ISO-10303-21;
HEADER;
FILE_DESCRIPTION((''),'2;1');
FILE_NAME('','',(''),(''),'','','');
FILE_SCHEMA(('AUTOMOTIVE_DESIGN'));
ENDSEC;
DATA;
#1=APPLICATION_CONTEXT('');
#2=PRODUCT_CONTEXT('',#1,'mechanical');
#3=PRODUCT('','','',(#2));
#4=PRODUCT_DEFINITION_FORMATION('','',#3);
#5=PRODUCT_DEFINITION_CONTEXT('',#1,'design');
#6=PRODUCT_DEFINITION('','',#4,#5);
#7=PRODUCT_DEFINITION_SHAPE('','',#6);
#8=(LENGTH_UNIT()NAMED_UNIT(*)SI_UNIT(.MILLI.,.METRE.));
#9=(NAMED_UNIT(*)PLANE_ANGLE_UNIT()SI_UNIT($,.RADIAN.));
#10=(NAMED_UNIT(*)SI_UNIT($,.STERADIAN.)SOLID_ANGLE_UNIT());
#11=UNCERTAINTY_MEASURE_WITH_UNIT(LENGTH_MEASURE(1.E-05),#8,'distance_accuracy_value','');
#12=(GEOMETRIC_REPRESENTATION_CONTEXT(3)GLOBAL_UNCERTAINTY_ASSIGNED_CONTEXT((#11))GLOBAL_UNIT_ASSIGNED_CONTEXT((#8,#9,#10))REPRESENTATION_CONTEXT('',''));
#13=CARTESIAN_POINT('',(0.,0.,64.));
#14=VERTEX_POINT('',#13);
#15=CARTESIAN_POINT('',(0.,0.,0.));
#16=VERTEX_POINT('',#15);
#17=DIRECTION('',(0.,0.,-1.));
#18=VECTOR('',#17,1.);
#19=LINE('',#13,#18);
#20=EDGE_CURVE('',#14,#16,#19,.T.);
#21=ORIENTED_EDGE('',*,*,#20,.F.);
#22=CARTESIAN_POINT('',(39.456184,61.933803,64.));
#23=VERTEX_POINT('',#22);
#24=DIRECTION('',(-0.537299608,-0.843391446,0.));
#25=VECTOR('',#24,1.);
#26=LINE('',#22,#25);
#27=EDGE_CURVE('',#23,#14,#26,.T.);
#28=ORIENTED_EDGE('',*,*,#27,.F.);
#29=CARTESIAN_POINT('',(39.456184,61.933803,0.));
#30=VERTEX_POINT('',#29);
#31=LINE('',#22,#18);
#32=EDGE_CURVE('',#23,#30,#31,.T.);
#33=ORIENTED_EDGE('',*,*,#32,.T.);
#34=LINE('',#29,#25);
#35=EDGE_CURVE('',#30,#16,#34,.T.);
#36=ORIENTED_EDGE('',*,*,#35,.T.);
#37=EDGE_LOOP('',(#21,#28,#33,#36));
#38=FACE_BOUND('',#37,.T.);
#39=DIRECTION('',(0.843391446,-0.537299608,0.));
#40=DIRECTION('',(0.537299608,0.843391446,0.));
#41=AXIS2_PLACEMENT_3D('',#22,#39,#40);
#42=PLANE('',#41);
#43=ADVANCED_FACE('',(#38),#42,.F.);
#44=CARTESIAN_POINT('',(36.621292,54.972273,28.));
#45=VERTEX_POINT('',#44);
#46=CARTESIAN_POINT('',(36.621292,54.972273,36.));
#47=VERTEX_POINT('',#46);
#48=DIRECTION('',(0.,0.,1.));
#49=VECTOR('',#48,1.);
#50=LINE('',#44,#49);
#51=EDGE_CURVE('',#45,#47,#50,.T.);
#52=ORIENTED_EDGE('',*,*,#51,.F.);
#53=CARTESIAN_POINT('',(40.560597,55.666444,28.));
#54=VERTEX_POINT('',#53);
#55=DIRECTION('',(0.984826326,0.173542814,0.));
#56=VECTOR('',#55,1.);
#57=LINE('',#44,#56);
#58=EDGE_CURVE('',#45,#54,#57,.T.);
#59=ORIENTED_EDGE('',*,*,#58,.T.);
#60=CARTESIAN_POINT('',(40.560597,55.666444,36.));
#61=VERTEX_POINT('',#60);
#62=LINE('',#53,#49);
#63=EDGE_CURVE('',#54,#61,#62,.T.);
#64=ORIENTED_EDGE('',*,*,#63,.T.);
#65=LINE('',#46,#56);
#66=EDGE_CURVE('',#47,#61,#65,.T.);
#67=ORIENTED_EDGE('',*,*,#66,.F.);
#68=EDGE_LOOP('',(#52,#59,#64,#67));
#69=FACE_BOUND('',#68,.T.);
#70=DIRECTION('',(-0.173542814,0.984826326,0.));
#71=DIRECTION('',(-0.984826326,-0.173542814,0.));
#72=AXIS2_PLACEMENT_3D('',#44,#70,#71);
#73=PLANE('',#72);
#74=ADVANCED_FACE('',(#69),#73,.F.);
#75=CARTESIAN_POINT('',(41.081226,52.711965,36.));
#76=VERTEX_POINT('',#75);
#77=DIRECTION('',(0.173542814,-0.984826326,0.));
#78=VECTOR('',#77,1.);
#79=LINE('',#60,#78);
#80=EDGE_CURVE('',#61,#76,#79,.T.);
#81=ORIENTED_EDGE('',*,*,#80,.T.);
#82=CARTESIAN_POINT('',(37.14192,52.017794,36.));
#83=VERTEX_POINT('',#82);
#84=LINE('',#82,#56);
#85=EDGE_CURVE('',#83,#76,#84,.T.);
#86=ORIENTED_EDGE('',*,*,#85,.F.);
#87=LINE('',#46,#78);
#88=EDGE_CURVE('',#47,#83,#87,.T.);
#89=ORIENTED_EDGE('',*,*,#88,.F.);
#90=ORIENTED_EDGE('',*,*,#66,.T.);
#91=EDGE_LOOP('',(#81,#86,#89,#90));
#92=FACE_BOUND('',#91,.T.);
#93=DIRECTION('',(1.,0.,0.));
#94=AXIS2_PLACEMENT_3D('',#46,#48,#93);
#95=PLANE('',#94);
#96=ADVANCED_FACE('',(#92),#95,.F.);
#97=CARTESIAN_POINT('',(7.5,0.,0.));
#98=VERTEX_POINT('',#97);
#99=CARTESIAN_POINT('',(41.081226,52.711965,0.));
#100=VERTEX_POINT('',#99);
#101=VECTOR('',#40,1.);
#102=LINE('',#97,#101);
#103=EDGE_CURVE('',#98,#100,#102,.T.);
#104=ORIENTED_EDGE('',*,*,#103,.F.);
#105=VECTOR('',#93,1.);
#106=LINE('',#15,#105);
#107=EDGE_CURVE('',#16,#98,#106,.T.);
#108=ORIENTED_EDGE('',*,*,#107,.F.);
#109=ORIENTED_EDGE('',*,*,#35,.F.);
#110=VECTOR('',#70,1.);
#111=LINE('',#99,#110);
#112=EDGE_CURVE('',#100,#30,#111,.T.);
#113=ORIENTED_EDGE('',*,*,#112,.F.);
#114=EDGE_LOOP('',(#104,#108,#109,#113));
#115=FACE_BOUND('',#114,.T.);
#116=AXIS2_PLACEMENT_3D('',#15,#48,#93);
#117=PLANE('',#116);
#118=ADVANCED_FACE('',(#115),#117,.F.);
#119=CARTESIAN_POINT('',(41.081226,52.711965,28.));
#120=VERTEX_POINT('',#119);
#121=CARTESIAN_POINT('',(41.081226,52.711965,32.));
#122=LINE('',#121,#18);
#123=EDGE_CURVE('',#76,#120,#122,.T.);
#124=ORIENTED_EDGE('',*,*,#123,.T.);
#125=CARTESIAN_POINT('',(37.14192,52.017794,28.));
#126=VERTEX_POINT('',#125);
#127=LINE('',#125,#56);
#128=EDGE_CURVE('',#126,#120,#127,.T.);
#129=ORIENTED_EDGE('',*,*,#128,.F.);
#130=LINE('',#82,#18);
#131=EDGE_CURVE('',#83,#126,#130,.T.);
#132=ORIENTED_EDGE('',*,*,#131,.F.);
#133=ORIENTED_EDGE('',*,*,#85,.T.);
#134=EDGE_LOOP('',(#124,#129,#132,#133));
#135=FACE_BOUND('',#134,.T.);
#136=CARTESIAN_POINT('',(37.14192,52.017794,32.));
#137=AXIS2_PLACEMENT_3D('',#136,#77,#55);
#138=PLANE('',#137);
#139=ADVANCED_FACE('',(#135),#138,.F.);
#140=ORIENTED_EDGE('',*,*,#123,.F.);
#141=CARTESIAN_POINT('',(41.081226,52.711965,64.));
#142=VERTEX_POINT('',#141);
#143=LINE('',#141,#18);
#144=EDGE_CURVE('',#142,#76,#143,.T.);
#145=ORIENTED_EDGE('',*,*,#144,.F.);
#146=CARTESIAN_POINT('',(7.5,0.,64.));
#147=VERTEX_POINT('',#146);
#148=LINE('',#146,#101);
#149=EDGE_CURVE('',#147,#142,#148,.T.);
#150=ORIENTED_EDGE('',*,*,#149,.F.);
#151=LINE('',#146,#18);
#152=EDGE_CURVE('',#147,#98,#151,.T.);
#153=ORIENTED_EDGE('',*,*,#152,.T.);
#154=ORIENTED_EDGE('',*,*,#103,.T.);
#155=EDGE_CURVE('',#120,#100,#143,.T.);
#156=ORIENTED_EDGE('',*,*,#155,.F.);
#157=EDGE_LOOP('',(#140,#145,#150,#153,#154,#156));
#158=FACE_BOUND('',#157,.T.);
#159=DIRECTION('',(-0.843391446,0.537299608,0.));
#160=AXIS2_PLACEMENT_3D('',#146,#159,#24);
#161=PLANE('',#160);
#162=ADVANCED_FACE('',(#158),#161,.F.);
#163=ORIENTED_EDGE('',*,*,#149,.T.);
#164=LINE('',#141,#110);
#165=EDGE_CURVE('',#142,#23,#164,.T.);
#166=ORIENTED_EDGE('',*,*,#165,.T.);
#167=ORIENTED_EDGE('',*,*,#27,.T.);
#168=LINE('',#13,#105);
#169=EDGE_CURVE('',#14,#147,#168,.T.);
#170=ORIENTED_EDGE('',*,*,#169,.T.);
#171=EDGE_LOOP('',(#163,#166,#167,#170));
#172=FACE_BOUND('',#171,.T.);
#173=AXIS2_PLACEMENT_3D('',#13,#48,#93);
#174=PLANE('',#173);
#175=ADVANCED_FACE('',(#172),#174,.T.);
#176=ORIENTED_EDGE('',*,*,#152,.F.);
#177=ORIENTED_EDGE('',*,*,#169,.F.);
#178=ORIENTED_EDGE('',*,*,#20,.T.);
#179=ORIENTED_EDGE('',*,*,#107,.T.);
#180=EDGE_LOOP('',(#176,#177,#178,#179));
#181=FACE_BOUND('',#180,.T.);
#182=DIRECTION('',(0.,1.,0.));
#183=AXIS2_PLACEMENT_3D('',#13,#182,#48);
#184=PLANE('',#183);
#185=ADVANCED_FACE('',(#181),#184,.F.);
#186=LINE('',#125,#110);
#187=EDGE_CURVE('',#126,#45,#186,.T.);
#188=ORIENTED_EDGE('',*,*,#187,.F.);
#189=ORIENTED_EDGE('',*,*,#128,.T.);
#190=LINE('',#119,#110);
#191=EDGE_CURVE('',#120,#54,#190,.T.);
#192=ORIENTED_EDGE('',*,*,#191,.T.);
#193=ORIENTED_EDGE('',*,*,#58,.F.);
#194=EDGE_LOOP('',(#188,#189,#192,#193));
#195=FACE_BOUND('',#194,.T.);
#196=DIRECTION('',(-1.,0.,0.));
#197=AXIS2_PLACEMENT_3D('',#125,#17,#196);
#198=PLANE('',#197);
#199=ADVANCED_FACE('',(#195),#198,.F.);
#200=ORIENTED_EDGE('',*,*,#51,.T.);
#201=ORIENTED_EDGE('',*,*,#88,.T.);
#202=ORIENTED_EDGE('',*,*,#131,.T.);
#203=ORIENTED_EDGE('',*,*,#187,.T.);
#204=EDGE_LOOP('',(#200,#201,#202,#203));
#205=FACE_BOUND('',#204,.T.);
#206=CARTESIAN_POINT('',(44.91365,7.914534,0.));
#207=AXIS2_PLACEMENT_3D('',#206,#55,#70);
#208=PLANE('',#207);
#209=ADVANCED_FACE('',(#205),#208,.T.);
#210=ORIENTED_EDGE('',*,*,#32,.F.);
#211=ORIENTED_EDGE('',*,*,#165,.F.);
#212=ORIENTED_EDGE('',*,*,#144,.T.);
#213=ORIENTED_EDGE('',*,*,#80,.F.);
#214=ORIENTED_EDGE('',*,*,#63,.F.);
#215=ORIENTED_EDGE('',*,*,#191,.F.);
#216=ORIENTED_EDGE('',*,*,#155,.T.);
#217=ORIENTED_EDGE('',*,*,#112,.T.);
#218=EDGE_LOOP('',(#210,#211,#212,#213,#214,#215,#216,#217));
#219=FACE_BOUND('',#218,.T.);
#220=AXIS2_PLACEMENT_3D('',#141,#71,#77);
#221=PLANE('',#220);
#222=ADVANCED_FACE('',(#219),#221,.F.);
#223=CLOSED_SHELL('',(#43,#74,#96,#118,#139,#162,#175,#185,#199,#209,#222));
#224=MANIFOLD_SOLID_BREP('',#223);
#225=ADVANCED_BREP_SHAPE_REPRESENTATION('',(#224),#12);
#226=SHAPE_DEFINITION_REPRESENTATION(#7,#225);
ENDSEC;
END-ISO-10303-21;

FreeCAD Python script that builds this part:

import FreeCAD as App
import Part
import Sketcher
from FreeCAD import Vector
Q = App.Units.Quantity

doc = App.newDocument("Part")
params = doc.addObject("Spreadsheet::Sheet", "Params")
for row, (alias, value) in enumerate([
    ("sketch1_width", "7.5 mm"),
    ("sketch1_length", "62.5 mm"),
    ("pad1_length", "64 mm"),
    ("sketch2_width", "8 mm"),
    ("sketch2_height", "3 mm"),
    ("pocket1_length", "4 mm"),
], start=1):
    params.set(f"A{row}", alias)
    params.set(f"B{row}", "=" + value)
    params.setAlias(f"B{row}", alias)

body = doc.addObject("PartDesign::Body", "Body")

# Sketch on XY plane
sketch1 = doc.addObject("Sketcher::SketchObject", "Sketch")
body.addObject(sketch1)
sketch1.AttachmentSupport = (doc.XY_Plane, [""])
sketch1.MapMode = "FlatFace"
sketch1.addGeometry([
    Part.LineSegment(Vector(0, 0, 0), Vector(8, 0, 0)),
    Part.LineSegment(Vector(8, 0, 0), Vector(41, 53, 0)),
    Part.LineSegment(Vector(41, 53, 0), Vector(39, 62, 0)),
    Part.LineSegment(Vector(39, 62, 0), Vector(0, 0, 0)),
], False)
sketch1.addConstraint([
    Sketcher.Constraint("Coincident", 0, 2, 1, 1),
    Sketcher.Constraint("Coincident", 1, 2, 2, 1),
    Sketcher.Constraint("Coincident", 2, 2, 3, 1),
    Sketcher.Constraint("Coincident", 3, 2, 0, 1),
    Sketcher.Constraint("Horizontal", 0),
    Sketcher.Constraint("Coincident", 3, 2, -1, 1),
    Sketcher.Constraint("Parallel", 1, 3),
    Sketcher.Constraint("DistanceX", 0, 1, 0, 2, 7.5),
    Sketcher.Constraint("Angle", 1, Q("57.5 deg")),
    Sketcher.Constraint("Distance", 1, 62.5),
    Sketcher.Constraint("Distance", 3, 73.434232),
])
sketch1.setExpression("Constraints[7]", "Params.sketch1_width")
sketch1.setExpression("Constraints[9]", "Params.sketch1_length")
pad1 = doc.addObject("PartDesign::Pad", "Pad")
body.addObject(pad1)
pad1.Profile = sketch1
pad1.setExpression("Length", "Params.pad1_length")

# Sketch on an angled plane
sketch2 = doc.addObject("Sketcher::SketchObject", "Sketch001")
body.addObject(sketch2)
sketch2.Placement = App.Placement(Vector(48.852955, 8.608705, 0), App.Rotation(Vector(0, 0, -1), Vector(-0.173542814, 0.984826326, 0), Vector(0.984826326, 0.173542814, 0), "ZXY"))
sketch2.addGeometry([
    Part.LineSegment(Vector(-28, 44.8, 0), Vector(-28, 47.8, 0)),
    Part.LineSegment(Vector(-28, 47.8, 0), Vector(-36, 47.8, 0)),
    Part.LineSegment(Vector(-36, 47.8, 0), Vector(-36, 44.8, 0)),
    Part.LineSegment(Vector(-36, 44.8, 0), Vector(-28, 44.8, 0)),
], False)
sketch2.addConstraint([
    Sketcher.Constraint("Coincident", 0, 2, 1, 1),
    Sketcher.Constraint("Coincident", 1, 2, 2, 1),
    Sketcher.Constraint("Coincident", 2, 2, 3, 1),
    Sketcher.Constraint("Coincident", 3, 2, 0, 1),
    Sketcher.Constraint("Vertical", 0),
    Sketcher.Constraint("Horizontal", 1),
    Sketcher.Constraint("Vertical", 2),
    Sketcher.Constraint("Horizontal", 3),
    Sketcher.Constraint("DistanceX", 1, 2, 1, 1, 8.0),
    Sketcher.Constraint("DistanceY", 0, 1, 0, 2, 3.0),
    Sketcher.Constraint("DistanceX", 0, 2, -1, 1, 28.0),
    Sketcher.Constraint("DistanceY", -1, 1, 0, 2, 47.78278),
])
sketch2.setExpression("Constraints[8]", "Params.sketch2_width")
sketch2.setExpression("Constraints[9]", "Params.sketch2_height")
pocket1 = doc.addObject("PartDesign::Pocket", "Pocket")
body.addObject(pocket1)
pocket1.Profile = sketch2
pocket1.setExpression("Length", "Params.pocket1_length")

doc.recompute()
